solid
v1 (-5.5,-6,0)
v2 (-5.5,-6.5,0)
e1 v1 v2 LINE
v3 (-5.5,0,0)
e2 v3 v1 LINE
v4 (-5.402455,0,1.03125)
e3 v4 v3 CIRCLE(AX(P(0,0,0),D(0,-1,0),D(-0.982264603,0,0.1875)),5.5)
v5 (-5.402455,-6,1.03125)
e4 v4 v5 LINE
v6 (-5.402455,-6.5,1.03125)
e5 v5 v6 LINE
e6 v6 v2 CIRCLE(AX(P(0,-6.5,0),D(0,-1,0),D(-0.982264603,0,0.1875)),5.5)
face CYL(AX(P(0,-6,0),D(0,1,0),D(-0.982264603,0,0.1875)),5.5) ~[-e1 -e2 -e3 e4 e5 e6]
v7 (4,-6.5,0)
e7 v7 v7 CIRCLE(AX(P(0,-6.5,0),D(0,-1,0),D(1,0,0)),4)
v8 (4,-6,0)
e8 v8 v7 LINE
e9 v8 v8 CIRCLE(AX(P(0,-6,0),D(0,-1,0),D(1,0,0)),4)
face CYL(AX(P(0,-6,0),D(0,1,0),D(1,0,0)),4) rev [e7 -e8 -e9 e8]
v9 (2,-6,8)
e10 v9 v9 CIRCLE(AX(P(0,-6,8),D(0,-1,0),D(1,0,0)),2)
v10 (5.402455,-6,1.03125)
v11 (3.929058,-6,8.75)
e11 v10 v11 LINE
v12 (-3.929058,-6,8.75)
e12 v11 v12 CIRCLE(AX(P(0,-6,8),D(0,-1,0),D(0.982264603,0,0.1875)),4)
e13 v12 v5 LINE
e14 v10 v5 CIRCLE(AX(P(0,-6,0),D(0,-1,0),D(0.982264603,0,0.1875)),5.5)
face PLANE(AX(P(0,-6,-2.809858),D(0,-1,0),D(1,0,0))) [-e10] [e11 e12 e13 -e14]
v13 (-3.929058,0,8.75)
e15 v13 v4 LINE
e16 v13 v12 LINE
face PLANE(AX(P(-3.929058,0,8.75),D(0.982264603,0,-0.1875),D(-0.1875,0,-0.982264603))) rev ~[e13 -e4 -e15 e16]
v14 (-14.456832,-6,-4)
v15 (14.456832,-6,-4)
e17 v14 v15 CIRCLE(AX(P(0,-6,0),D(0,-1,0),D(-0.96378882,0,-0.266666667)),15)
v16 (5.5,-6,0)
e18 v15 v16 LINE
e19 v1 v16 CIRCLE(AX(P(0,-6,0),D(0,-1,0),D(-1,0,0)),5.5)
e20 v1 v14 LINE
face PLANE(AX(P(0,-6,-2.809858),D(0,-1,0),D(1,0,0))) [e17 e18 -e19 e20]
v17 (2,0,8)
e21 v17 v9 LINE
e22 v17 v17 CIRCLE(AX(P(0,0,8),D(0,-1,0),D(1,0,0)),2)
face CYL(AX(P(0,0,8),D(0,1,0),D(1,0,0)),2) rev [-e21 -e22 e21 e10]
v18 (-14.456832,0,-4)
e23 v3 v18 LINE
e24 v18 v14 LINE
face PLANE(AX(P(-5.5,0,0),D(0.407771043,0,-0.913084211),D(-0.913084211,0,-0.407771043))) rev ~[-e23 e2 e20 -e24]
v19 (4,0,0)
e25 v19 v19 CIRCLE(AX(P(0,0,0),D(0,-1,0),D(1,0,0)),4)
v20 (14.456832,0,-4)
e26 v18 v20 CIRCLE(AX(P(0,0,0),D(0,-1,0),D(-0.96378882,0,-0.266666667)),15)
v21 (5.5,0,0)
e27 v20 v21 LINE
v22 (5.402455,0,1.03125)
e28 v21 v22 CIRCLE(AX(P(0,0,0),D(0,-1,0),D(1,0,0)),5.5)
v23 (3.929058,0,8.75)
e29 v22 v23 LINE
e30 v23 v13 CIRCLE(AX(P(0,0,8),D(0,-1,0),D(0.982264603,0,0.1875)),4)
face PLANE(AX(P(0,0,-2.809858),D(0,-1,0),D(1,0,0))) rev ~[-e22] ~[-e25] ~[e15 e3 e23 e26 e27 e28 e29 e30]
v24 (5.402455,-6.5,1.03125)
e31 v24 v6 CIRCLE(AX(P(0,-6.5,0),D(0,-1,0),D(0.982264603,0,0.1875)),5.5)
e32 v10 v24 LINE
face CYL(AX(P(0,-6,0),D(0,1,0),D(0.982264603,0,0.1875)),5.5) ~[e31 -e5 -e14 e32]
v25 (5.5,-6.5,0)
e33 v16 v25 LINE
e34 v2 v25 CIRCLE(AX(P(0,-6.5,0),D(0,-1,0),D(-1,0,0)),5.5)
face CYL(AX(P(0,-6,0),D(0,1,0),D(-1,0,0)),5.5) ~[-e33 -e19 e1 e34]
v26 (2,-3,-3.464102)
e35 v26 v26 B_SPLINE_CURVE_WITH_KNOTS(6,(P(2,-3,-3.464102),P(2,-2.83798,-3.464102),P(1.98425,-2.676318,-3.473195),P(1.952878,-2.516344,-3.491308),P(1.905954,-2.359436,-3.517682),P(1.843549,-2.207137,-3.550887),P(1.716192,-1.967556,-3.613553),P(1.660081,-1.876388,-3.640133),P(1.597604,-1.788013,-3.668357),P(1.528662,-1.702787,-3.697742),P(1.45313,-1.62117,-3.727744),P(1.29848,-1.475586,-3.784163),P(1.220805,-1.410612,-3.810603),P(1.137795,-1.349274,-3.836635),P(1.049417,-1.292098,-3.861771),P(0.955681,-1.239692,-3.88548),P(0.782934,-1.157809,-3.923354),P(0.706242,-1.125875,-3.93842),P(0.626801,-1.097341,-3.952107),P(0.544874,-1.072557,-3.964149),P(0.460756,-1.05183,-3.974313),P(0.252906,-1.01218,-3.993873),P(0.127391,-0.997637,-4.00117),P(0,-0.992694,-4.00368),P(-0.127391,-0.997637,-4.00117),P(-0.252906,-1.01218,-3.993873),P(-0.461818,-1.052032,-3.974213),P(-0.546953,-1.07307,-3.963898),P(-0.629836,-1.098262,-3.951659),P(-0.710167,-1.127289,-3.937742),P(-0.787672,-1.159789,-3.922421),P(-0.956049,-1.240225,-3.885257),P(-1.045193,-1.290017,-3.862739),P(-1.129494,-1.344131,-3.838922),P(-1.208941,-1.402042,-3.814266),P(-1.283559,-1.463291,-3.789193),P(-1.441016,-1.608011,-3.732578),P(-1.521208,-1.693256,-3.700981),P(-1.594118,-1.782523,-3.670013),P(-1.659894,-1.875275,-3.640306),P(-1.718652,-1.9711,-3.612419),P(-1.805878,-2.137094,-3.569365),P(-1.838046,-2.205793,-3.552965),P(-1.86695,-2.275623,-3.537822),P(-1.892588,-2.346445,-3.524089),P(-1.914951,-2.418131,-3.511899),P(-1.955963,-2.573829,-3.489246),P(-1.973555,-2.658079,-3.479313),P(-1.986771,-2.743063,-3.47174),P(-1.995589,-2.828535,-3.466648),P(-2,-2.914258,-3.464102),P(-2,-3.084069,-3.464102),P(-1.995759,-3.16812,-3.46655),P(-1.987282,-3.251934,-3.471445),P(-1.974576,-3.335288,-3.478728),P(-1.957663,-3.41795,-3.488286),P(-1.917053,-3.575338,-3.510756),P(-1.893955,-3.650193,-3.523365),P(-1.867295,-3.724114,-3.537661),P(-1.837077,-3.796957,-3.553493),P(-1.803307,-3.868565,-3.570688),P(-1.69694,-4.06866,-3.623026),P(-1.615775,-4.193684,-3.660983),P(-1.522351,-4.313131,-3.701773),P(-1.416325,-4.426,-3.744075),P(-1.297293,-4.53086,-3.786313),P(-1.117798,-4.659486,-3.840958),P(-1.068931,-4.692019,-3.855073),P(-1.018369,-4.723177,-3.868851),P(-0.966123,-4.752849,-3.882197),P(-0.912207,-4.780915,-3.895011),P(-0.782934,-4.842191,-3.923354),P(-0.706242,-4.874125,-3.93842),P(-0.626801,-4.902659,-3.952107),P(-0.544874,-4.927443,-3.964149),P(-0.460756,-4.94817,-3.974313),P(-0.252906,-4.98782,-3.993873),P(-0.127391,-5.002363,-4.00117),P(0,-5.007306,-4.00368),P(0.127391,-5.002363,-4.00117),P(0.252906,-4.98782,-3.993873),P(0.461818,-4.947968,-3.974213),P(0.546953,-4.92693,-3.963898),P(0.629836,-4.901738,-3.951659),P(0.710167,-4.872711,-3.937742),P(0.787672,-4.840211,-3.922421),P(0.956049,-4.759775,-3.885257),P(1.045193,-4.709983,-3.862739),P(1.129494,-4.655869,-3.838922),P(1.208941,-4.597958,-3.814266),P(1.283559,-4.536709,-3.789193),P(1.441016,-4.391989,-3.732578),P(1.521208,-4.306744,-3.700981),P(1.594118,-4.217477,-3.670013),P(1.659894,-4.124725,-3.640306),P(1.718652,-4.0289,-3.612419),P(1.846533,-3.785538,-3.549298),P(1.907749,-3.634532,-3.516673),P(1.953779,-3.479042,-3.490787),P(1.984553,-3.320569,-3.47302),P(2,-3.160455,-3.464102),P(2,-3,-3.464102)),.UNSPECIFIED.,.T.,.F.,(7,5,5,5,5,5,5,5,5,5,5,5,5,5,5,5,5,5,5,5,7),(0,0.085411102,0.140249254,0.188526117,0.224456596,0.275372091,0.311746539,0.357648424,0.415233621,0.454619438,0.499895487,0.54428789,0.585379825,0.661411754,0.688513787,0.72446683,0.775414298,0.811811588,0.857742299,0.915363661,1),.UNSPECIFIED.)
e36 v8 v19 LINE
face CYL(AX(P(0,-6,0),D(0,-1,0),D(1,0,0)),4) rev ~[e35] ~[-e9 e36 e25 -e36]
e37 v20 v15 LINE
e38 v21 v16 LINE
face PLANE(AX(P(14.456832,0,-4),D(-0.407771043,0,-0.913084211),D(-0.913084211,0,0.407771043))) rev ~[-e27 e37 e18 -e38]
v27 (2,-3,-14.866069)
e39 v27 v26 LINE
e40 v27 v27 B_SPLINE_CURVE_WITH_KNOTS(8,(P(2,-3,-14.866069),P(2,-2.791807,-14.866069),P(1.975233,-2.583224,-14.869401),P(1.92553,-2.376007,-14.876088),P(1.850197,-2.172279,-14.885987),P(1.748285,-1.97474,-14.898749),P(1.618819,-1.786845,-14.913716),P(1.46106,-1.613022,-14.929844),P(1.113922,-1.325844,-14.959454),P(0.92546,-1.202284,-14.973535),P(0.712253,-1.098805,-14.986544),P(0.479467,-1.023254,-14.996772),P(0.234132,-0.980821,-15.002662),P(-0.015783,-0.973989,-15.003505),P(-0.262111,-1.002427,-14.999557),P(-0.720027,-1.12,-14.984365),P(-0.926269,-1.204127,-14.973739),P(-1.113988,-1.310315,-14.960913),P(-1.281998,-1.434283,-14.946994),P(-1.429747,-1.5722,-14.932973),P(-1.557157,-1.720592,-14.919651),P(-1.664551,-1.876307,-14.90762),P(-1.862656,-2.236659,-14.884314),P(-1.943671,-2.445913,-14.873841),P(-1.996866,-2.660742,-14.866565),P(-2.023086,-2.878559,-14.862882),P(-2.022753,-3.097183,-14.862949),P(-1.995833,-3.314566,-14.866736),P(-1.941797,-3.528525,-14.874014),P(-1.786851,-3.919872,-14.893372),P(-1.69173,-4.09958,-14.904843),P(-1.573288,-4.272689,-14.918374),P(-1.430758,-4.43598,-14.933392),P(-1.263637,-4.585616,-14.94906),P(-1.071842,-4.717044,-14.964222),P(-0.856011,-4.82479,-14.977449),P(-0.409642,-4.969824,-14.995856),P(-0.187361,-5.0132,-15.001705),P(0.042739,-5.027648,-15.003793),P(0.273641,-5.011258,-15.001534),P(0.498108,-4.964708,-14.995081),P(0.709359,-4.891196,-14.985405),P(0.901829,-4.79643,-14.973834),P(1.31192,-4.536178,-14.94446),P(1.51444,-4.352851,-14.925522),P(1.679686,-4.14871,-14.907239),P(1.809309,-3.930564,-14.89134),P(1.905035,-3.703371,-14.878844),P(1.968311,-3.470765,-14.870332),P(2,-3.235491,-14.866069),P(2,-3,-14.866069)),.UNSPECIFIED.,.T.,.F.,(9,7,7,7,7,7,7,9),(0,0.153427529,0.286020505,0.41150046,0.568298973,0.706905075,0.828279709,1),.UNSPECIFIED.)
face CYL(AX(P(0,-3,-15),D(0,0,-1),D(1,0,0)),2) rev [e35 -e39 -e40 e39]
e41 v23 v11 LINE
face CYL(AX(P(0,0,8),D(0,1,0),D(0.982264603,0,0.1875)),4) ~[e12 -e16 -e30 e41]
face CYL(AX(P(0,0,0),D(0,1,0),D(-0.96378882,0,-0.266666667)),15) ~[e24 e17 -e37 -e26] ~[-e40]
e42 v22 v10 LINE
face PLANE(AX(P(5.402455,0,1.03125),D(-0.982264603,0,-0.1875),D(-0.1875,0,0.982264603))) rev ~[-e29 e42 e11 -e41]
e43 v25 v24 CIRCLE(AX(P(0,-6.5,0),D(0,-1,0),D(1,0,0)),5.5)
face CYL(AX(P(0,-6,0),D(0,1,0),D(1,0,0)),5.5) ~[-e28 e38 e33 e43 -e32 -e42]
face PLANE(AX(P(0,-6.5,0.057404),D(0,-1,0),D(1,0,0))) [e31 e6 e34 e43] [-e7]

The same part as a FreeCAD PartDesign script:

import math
import FreeCAD as App
import Part
import Sketcher
from FreeCAD import Vector

doc = App.newDocument("Part")
body = doc.addObject("PartDesign::Body", "Body")

sketch1 = body.newObject("Sketcher::SketchObject", "Sketch")
sketch1.AttachmentSupport = (doc.getObject("XZ_Plane"), [""])
sketch1.MapMode = "FlatFace"
sketch1.addGeometry([
    Part.LineSegment(Vector(-5.5, 0, 0), Vector(-14.5, -4, 0)),
    Part.ArcOfCircle(Part.Circle(Vector(0, 0, 0), Vector(0, 0, 1), 15), math.radians(-165), math.radians(-15)),
    Part.LineSegment(Vector(14.5, -4, 0), Vector(5.5, 0, 0)),
    Part.ArcOfCircle(Part.Circle(Vector(0, 0, 0), Vector(0, 0, 1), 5.5), math.radians(0), math.radians(10.81)),
    Part.LineSegment(Vector(5.4, 1, 0), Vector(3.9, 8.8, 0)),
    Part.ArcOfCircle(Part.Circle(Vector(0, 8, 0), Vector(0, 0, 1), 4), math.radians(11), math.radians(169)),
    Part.LineSegment(Vector(-3.9, 8.8, 0), Vector(-5.4, 1, 0)),
    Part.ArcOfCircle(Part.Circle(Vector(0, 0, 0), Vector(0, 0, 1), 5.5), math.radians(169.19), math.radians(180)),
    Part.Circle(Vector(0, 8, 0), Vector(0, 0, 1), 2),
], False)
sketch1.addConstraint([
    Sketcher.Constraint("Coincident", 0, 2, 1, 1),
    Sketcher.Constraint("Coincident", 1, 2, 2, 1),
    Sketcher.Constraint("Coincident", 2, 2, 3, 1),
    Sketcher.Constraint("Tangent", 3, 2, 4, 1),
    Sketcher.Constraint("Tangent", 4, 2, 5, 1),
    Sketcher.Constraint("Tangent", 5, 2, 6, 1),
    Sketcher.Constraint("Tangent", 6, 2, 7, 1),
    Sketcher.Constraint("Coincident", 7, 2, 0, 1),
    Sketcher.Constraint("Coincident", 1, 3, -1, 1),
    Sketcher.Constraint("Coincident", 3, 3, -1, 1),
    Sketcher.Constraint("Coincident", 7, 3, -1, 1),
    Sketcher.Constraint("Coincident", 8, 3, 5, 3),
    Sketcher.Constraint("Equal", 3, 7),
    Sketcher.Constraint("PointOnObject", 5, 3, -2),
    Sketcher.Constraint("PointOnObject", 2, 2, -1),
    Sketcher.Constraint("PointOnObject", 7, 2, -1),
    Sketcher.Constraint("Horizontal", 0, 2, 1, 2),
    Sketcher.Constraint("Diameter", 8, 4.0),
    Sketcher.Constraint("Radius", 1, 15.0),
    Sketcher.Constraint("Radius", 5, 4.0),
    Sketcher.Constraint("Radius", 3, 5.5),
    Sketcher.Constraint("DistanceY", -1, 1, 5, 3, 8.0),
    Sketcher.Constraint("DistanceY", 0, 2, -1, 1, 4.0),
])
pad1 = body.newObject("PartDesign::Pad", "Pad")
pad1.Profile = sketch1
pad1.Length = 6

sketch2 = body.newObject("Sketcher::SketchObject", "Sketch001")
sketch2.AttachmentSupport = (doc.getObject("XZ_Plane"), [""])
sketch2.MapMode = "FlatFace"
sketch2.AttachmentOffset = App.Placement(Vector(0, 0, 6), App.Rotation())
sketch2.addGeometry(Part.Circle(Vector(0, 0, 0), Vector(0, 0, 1), 4), False)
sketch2.addConstraint([
    Sketcher.Constraint("Coincident", 0, 3, -1, 1),
    Sketcher.Constraint("Diameter", 0, 8.0),
])
pocket1 = body.newObject("PartDesign::Pocket", "Pocket")
pocket1.Profile = sketch2
pocket1.Length = 25

sketch3 = body.newObject("Sketcher::SketchObject", "Sketch002")
sketch3.AttachmentSupport = (doc.getObject("XZ_Plane"), [""])
sketch3.MapMode = "FlatFace"
sketch3.AttachmentOffset = App.Placement(Vector(0, 0, 6), App.Rotation())
sketch3.addGeometry([
    Part.ArcOfCircle(Part.Circle(Vector(0, 0, 0), Vector(0, 0, 1), 5.5), math.radians(180), math.radians(360)),
    Part.ArcOfCircle(Part.Circle(Vector(0, 0, 0), Vector(0, 0, 1), 5.5), math.radians(0), math.radians(10.81)),
    Part.ArcOfCircle(Part.Circle(Vector(0, 0, 0), Vector(0, 0, 1), 5.5), math.radians(11), math.radians(169)),
    Part.ArcOfCircle(Part.Circle(Vector(0, 0, 0), Vector(0, 0, 1), 5.5), math.radians(169.19), math.radians(180)),
    Part.Circle(Vector(0, 0, 0), Vector(0, 0, 1), 4),
], False)
sketch3.addConstraint([
    Sketcher.Constraint("Tangent", 0, 2, 1, 1),
    Sketcher.Constraint("Tangent", 1, 2, 2, 1),
    Sketcher.Constraint("Tangent", 2, 2, 3, 1),
    Sketcher.Constraint("Tangent", 3, 2, 0, 1),
    Sketcher.Constraint("Coincident", 0, 3, -1, 1),
    Sketcher.Constraint("Coincident", 4, 3, -1, 1),
    Sketcher.Constraint("Equal", 0, 1),
    Sketcher.Constraint("PointOnObject", 0, 2, -1),
    Sketcher.Constraint("PointOnObject", 3, 2, -1),
    Sketcher.Constraint("Horizontal", 1, 2, 2, 2),
    Sketcher.Constraint("Diameter", 4, 8.0),
    Sketcher.Constraint("Radius", 0, 5.5),
    Sketcher.Constraint("DistanceY", -1, 1, 1, 2, 1.03125),
])
pad2 = body.newObject("PartDesign::Pad", "Pad001")
pad2.Profile = sketch3
pad2.Length = 0.5

sketch4 = body.newObject("Sketcher::SketchObject", "Sketch003")
sketch4.AttachmentSupport = (doc.getObject("XY_Plane"), [""])
sketch4.MapMode = "FlatFace"
sketch4.AttachmentOffset = App.Placement(Vector(0, 0, -15), App.Rotation())
sketch4.addGeometry(Part.Circle(Vector(0, -3, 0), Vector(0, 0, 1), 2), False)
sketch4.addConstraint([
    Sketcher.Constraint("PointOnObject", 0, 3, -2),
    Sketcher.Constraint("Diameter", 0, 4.0),
    Sketcher.Constraint("DistanceY", 0, 3, -1, 1, 3.0),
])
pocket2 = body.newObject("PartDesign::Pocket", "Pocket001")
pocket2.Profile = sketch4
pocket2.Length = 12.535898
pocket2.Reversed = True

doc.recompute()
